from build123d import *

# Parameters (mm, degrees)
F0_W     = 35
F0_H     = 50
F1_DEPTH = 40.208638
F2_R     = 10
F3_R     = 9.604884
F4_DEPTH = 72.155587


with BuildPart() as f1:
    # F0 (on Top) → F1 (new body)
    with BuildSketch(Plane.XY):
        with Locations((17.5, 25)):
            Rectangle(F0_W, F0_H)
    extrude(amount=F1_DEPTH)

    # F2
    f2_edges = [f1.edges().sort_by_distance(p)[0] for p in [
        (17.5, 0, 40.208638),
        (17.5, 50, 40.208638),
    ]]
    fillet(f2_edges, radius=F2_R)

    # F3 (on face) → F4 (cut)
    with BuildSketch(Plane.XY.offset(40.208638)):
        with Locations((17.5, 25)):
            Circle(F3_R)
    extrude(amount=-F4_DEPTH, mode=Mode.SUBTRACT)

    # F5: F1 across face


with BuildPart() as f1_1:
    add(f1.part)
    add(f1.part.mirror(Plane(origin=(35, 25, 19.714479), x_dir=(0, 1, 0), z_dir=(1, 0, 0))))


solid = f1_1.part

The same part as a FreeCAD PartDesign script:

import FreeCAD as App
import Part
import Sketcher


def edges_at(feature, points):
    """Names of the edges that pass closest to the given points."""
    edges = feature.Shape.Edges
    near = lambda p: min(range(len(edges)), key=lambda i: edges[i].distToShape(Part.Vertex(*p))[0])
    return sorted({f"Edge{near(p) + 1}" for p in points})

doc = App.newDocument("Part")
body = doc.addObject("PartDesign::Body", "Body")

sketch1 = doc.addObject("Sketcher::SketchObject", "Sketch")
body.addObject(sketch1)
sketch1.AttachmentSupport = (doc.XY_Plane, [""])
sketch1.MapMode = "FlatFace"
sketch1.addGeometry(Part.LineSegment(App.Vector(0, 50, 0), App.Vector(0, 0, 0)), False)
sketch1.addGeometry(Part.LineSegment(App.Vector(0, 0, 0), App.Vector(35, 0, 0)), False)
sketch1.addGeometry(Part.LineSegment(App.Vector(35, 0, 0), App.Vector(35, 50, 0)), False)
sketch1.addGeometry(Part.LineSegment(App.Vector(35, 50, 0), App.Vector(0, 50, 0)), False)
sketch1.addConstraint(Sketcher.Constraint("Coincident", 0, 2, 1, 1))
sketch1.addConstraint(Sketcher.Constraint("Coincident", 1, 2, 2, 1))
sketch1.addConstraint(Sketcher.Constraint("Coincident", 2, 2, 3, 1))
sketch1.addConstraint(Sketcher.Constraint("Coincident", 3, 2, 0, 1))
sketch1.addConstraint(Sketcher.Constraint("Vertical", 0))
sketch1.addConstraint(Sketcher.Constraint("Horizontal", 1))
sketch1.addConstraint(Sketcher.Constraint("Vertical", 2))
sketch1.addConstraint(Sketcher.Constraint("Horizontal", 3))
sketch1.addConstraint(Sketcher.Constraint("Coincident", 0, 2, -1, 1))
sketch1.addConstraint(Sketcher.Constraint("DistanceX", 1, 1, 1, 2, 35.0))
sketch1.addConstraint(Sketcher.Constraint("DistanceY", 0, 2, 0, 1, 50.0))
pad1 = doc.addObject("PartDesign::Pad", "Pad")
body.addObject(pad1)
pad1.Profile = sketch1
pad1.Length = 40.208638
doc.recompute()

fillet = doc.addObject("PartDesign::Fillet", "Fillet")
body.addObject(fillet)
fillet.Base = (pad1, edges_at(pad1, [(17.5, 0, 40.209), (17.5, 50, 40.209)]))
fillet.Radius = 10

sketch2 = doc.addObject("Sketcher::SketchObject", "Sketch001")
body.addObject(sketch2)
sketch2.AttachmentSupport = (doc.XY_Plane, [""])
sketch2.MapMode = "FlatFace"
sketch2.AttachmentOffset = App.Placement(App.Vector(0, 0, 40.208638), App.Rotation())
sketch2.addGeometry(Part.Circle(App.Vector(18, 25, 0), App.Vector(0, 0, 1), 10), False)
sketch2.addConstraint(Sketcher.Constraint("DistanceY", -1, 1, 0, 3, 25.0))
sketch2.addConstraint(Sketcher.Constraint("DistanceX", -1, 1, 0, 3, 17.5))
sketch2.addConstraint(Sketcher.Constraint("Diameter", 0, 19.209768))
pocket1 = doc.addObject("PartDesign::Pocket", "Pocket")
body.addObject(pocket1)
pocket1.Profile = sketch2
pocket1.Length = 72.155587
body2 = doc.addObject("PartDesign::Body", "Body001")
doc.recompute()

body2.BaseFeature = body
doc.recompute()

mirroring = doc.addObject("Part::Mirroring", "Mirroring")
mirroring.Source = body
mirroring.Base = App.Vector(35, 25, 19.714479)
mirroring.Normal = App.Vector(1, 0, 0)
body3 = doc.addObject("PartDesign::Body", "Body002")
body3.BaseFeature = mirroring
boolean = doc.addObject("PartDesign::Boolean", "Boolean")
body2.addObject(boolean)
boolean.Type = "Fuse"
boolean.addObjects([body3])
doc.recompute()
mirroring.Visibility = False

doc.recompute()
